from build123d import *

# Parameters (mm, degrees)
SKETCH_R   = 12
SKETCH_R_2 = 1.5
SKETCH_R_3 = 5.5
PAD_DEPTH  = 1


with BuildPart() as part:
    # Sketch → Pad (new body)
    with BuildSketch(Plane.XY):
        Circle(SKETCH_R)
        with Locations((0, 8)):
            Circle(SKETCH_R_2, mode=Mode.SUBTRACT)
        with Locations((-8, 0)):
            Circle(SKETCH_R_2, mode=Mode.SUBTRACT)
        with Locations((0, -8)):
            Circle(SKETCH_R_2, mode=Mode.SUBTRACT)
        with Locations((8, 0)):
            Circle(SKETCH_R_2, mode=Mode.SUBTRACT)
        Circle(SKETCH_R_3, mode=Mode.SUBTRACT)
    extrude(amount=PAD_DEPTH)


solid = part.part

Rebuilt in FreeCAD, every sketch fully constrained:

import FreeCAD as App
import Part
import Sketcher

doc = App.newDocument("Part")
body = doc.addObject("PartDesign::Body", "Body")

sketch1 = body.newObject("Sketcher::SketchObject", "Sketch")
sketch1.AttachmentSupport = (doc.getObject("XY_Plane"), [""])
sketch1.MapMode = "FlatFace"
sketch1.addGeometry(Part.Circle(App.Vector(0, 0, 0), App.Vector(0, 0, 1), 12), False)
sketch1.addGeometry(Part.Circle(App.Vector(0, -8, 0), App.Vector(0, 0, 1), 1.5), False)
sketch1.addGeometry(Part.Circle(App.Vector(-8, 0, 0), App.Vector(0, 0, 1), 1.5), False)
sketch1.addGeometry(Part.Circle(App.Vector(0, 0, 0), App.Vector(0, 0, 1), 5.5), False)
sketch1.addGeometry(Part.Circle(App.Vector(8, 0, 0), App.Vector(0, 0, 1), 1.5), False)
sketch1.addGeometry(Part.Circle(App.Vector(0, 8, 0), App.Vector(0, 0, 1), 1.5), False)
sketch1.addConstraint(Sketcher.Constraint("Coincident", 0, 3, -1, 1))
sketch1.addConstraint(Sketcher.Constraint("Coincident", 3, 3, -1, 1))
sketch1.addConstraint(Sketcher.Constraint("Equal", 1, 2))
sketch1.addConstraint(Sketcher.Constraint("Equal", 2, 4))
sketch1.addConstraint(Sketcher.Constraint("Equal", 4, 5))
sketch1.addConstraint(Sketcher.Constraint("Symmetric", 2, 3, 4, 3, -1, 1))
sketch1.addConstraint(Sketcher.Constraint("Symmetric", 1, 3, 5, 3, -1, 1))
sketch1.addConstraint(Sketcher.Constraint("PointOnObject", 1, 3, -2))
sketch1.addConstraint(Sketcher.Constraint("PointOnObject", 2, 3, -1))
sketch1.addConstraint(Sketcher.Constraint("Diameter", 0, 24.0))
sketch1.addConstraint(Sketcher.Constraint("Diameter", 1, 3.0))
sketch1.addConstraint(Sketcher.Constraint("Diameter", 3, 11.0))
sketch1.addConstraint(Sketcher.Constraint("DistanceY", 1, 3, -1, 1, 8.0))
sketch1.addConstraint(Sketcher.Constraint("DistanceX", 2, 3, -1, 1, 8.0))
pad1 = body.newObject("PartDesign::Pad", "Pad")
pad1.Profile = sketch1
pad1.Length = 1

doc.recompute()
